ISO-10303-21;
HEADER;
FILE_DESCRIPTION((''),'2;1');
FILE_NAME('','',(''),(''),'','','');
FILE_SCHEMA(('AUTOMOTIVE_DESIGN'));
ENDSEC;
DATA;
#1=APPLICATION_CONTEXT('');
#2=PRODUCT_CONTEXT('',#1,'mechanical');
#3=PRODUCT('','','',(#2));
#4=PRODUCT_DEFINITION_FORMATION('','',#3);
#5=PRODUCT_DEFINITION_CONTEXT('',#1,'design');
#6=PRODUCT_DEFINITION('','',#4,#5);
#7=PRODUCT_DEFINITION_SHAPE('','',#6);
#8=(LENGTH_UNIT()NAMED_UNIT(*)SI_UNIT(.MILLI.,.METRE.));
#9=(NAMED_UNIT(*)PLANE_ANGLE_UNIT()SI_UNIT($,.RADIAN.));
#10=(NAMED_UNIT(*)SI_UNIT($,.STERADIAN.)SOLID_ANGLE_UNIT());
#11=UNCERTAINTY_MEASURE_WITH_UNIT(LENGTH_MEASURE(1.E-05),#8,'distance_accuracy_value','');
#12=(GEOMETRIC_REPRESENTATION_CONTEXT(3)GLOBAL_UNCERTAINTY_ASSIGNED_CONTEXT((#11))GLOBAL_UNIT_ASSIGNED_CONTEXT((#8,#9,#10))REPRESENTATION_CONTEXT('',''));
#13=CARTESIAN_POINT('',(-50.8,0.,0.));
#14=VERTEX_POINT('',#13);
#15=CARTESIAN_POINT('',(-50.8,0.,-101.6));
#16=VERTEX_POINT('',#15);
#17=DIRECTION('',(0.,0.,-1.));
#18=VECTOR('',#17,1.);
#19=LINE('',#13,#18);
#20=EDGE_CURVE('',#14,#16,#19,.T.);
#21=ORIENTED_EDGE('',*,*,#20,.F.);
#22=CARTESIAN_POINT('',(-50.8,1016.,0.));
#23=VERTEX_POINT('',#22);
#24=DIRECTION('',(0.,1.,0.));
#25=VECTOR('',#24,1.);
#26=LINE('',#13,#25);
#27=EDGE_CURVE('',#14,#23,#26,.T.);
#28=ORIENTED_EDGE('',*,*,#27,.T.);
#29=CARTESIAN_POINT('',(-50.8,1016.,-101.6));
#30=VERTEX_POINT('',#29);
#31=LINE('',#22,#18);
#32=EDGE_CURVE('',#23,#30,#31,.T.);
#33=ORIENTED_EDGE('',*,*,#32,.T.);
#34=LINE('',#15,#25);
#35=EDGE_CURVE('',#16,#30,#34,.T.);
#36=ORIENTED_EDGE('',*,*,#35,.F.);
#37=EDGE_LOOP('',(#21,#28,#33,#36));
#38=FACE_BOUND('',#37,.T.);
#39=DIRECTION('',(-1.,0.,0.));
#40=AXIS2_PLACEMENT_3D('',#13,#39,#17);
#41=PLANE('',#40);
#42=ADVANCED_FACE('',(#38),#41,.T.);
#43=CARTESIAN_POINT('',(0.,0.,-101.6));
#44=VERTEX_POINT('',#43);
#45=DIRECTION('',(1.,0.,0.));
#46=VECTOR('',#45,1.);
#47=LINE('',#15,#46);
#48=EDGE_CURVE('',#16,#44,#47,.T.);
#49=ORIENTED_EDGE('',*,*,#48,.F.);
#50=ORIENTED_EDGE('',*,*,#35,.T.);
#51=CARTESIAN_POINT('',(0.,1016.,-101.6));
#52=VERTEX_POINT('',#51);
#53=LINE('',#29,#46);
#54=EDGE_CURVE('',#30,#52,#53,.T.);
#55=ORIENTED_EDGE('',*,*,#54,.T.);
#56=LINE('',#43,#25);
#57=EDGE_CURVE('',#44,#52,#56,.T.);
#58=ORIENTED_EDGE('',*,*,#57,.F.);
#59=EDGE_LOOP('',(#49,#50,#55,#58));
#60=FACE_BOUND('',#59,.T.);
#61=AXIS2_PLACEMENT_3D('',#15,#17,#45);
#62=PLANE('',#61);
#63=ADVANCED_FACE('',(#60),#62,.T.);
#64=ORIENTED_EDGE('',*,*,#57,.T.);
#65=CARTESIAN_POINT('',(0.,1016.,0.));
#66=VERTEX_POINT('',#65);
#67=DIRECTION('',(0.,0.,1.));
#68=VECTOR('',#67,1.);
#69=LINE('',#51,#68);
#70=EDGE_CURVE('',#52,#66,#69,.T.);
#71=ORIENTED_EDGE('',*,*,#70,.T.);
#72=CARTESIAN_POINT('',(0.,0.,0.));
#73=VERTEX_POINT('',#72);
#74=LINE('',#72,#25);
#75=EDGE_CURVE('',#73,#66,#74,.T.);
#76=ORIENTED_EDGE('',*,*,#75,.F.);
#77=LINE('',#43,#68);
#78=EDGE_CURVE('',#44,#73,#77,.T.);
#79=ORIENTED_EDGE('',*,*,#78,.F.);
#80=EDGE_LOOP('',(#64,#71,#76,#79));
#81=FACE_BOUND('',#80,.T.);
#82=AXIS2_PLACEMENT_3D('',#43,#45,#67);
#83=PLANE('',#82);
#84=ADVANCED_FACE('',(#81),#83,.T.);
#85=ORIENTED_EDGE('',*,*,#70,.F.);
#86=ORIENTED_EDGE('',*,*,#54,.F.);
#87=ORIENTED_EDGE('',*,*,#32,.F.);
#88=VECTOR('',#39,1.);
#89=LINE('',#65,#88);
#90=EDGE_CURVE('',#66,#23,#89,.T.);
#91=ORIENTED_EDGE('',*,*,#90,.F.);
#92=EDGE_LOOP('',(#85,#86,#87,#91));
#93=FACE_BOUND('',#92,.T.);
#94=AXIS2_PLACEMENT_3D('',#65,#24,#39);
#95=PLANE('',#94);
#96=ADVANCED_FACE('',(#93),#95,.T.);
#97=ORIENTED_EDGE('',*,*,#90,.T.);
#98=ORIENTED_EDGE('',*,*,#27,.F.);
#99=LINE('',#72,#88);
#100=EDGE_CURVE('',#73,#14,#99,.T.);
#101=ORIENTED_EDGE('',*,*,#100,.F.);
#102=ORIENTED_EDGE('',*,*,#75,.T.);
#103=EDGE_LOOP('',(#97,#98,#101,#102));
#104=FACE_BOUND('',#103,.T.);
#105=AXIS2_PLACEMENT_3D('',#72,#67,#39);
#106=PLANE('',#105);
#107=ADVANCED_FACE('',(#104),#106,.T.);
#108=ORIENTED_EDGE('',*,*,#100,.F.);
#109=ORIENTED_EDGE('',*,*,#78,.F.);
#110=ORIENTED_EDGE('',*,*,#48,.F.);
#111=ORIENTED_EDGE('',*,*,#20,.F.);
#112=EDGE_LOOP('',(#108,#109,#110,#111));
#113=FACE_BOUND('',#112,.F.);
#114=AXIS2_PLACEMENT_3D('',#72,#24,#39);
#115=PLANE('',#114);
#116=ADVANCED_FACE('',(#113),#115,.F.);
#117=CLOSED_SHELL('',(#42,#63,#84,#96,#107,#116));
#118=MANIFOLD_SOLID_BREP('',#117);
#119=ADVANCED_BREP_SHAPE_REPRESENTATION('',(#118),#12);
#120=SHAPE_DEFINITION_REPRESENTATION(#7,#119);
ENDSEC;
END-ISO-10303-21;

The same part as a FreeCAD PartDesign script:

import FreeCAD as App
import Part
import Sketcher

V = App.Vector
Q = App.Units.Quantity

doc = App.newDocument("Part")
body = doc.addObject("PartDesign::Body", "Body")

# Sketch on XZ plane
sketch1 = doc.addObject("Sketcher::SketchObject", "Sketch")
body.addObject(sketch1)
sketch1.AttachmentSupport = (doc.XZ_Plane, [""])
sketch1.MapMode = "FlatFace"
sketch1.addGeometry([
    Part.LineSegment(V(-50.8, 0, 0), V(0, 0, 0)),
    Part.LineSegment(V(0, 0, 0), V(0, -101.6, 0)),
    Part.LineSegment(V(0, -101.6, 0), V(-50.8, -101.6, 0)),
    Part.LineSegment(V(-50.8, -101.6, 0), V(-50.8, 0, 0)),
], False)
sketch1.addConstraint([
    Sketcher.Constraint("Coincident", 0, 2, 1, 1),
    Sketcher.Constraint("Coincident", 1, 2, 2, 1),
    Sketcher.Constraint("Coincident", 2, 2, 3, 1),
    Sketcher.Constraint("Coincident", 3, 2, 0, 1),
    Sketcher.Constraint("Horizontal", 0),
    Sketcher.Constraint("Vertical", 1),
    Sketcher.Constraint("Horizontal", 2),
    Sketcher.Constraint("Vertical", 3),
    Sketcher.Constraint("Coincident", 0, 2, -1, 1),
    Sketcher.Constraint("DistanceX", 0, 1, 0, 2, Q("2 in")),
    Sketcher.Constraint("DistanceY", 1, 2, 1, 1, Q("4 in")),
])
pad1 = doc.addObject("PartDesign::Pad", "Pad")
body.addObject(pad1)
pad1.Profile = sketch1
pad1.Length = Q("40 in")
pad1.Reversed = True

doc.recompute()
